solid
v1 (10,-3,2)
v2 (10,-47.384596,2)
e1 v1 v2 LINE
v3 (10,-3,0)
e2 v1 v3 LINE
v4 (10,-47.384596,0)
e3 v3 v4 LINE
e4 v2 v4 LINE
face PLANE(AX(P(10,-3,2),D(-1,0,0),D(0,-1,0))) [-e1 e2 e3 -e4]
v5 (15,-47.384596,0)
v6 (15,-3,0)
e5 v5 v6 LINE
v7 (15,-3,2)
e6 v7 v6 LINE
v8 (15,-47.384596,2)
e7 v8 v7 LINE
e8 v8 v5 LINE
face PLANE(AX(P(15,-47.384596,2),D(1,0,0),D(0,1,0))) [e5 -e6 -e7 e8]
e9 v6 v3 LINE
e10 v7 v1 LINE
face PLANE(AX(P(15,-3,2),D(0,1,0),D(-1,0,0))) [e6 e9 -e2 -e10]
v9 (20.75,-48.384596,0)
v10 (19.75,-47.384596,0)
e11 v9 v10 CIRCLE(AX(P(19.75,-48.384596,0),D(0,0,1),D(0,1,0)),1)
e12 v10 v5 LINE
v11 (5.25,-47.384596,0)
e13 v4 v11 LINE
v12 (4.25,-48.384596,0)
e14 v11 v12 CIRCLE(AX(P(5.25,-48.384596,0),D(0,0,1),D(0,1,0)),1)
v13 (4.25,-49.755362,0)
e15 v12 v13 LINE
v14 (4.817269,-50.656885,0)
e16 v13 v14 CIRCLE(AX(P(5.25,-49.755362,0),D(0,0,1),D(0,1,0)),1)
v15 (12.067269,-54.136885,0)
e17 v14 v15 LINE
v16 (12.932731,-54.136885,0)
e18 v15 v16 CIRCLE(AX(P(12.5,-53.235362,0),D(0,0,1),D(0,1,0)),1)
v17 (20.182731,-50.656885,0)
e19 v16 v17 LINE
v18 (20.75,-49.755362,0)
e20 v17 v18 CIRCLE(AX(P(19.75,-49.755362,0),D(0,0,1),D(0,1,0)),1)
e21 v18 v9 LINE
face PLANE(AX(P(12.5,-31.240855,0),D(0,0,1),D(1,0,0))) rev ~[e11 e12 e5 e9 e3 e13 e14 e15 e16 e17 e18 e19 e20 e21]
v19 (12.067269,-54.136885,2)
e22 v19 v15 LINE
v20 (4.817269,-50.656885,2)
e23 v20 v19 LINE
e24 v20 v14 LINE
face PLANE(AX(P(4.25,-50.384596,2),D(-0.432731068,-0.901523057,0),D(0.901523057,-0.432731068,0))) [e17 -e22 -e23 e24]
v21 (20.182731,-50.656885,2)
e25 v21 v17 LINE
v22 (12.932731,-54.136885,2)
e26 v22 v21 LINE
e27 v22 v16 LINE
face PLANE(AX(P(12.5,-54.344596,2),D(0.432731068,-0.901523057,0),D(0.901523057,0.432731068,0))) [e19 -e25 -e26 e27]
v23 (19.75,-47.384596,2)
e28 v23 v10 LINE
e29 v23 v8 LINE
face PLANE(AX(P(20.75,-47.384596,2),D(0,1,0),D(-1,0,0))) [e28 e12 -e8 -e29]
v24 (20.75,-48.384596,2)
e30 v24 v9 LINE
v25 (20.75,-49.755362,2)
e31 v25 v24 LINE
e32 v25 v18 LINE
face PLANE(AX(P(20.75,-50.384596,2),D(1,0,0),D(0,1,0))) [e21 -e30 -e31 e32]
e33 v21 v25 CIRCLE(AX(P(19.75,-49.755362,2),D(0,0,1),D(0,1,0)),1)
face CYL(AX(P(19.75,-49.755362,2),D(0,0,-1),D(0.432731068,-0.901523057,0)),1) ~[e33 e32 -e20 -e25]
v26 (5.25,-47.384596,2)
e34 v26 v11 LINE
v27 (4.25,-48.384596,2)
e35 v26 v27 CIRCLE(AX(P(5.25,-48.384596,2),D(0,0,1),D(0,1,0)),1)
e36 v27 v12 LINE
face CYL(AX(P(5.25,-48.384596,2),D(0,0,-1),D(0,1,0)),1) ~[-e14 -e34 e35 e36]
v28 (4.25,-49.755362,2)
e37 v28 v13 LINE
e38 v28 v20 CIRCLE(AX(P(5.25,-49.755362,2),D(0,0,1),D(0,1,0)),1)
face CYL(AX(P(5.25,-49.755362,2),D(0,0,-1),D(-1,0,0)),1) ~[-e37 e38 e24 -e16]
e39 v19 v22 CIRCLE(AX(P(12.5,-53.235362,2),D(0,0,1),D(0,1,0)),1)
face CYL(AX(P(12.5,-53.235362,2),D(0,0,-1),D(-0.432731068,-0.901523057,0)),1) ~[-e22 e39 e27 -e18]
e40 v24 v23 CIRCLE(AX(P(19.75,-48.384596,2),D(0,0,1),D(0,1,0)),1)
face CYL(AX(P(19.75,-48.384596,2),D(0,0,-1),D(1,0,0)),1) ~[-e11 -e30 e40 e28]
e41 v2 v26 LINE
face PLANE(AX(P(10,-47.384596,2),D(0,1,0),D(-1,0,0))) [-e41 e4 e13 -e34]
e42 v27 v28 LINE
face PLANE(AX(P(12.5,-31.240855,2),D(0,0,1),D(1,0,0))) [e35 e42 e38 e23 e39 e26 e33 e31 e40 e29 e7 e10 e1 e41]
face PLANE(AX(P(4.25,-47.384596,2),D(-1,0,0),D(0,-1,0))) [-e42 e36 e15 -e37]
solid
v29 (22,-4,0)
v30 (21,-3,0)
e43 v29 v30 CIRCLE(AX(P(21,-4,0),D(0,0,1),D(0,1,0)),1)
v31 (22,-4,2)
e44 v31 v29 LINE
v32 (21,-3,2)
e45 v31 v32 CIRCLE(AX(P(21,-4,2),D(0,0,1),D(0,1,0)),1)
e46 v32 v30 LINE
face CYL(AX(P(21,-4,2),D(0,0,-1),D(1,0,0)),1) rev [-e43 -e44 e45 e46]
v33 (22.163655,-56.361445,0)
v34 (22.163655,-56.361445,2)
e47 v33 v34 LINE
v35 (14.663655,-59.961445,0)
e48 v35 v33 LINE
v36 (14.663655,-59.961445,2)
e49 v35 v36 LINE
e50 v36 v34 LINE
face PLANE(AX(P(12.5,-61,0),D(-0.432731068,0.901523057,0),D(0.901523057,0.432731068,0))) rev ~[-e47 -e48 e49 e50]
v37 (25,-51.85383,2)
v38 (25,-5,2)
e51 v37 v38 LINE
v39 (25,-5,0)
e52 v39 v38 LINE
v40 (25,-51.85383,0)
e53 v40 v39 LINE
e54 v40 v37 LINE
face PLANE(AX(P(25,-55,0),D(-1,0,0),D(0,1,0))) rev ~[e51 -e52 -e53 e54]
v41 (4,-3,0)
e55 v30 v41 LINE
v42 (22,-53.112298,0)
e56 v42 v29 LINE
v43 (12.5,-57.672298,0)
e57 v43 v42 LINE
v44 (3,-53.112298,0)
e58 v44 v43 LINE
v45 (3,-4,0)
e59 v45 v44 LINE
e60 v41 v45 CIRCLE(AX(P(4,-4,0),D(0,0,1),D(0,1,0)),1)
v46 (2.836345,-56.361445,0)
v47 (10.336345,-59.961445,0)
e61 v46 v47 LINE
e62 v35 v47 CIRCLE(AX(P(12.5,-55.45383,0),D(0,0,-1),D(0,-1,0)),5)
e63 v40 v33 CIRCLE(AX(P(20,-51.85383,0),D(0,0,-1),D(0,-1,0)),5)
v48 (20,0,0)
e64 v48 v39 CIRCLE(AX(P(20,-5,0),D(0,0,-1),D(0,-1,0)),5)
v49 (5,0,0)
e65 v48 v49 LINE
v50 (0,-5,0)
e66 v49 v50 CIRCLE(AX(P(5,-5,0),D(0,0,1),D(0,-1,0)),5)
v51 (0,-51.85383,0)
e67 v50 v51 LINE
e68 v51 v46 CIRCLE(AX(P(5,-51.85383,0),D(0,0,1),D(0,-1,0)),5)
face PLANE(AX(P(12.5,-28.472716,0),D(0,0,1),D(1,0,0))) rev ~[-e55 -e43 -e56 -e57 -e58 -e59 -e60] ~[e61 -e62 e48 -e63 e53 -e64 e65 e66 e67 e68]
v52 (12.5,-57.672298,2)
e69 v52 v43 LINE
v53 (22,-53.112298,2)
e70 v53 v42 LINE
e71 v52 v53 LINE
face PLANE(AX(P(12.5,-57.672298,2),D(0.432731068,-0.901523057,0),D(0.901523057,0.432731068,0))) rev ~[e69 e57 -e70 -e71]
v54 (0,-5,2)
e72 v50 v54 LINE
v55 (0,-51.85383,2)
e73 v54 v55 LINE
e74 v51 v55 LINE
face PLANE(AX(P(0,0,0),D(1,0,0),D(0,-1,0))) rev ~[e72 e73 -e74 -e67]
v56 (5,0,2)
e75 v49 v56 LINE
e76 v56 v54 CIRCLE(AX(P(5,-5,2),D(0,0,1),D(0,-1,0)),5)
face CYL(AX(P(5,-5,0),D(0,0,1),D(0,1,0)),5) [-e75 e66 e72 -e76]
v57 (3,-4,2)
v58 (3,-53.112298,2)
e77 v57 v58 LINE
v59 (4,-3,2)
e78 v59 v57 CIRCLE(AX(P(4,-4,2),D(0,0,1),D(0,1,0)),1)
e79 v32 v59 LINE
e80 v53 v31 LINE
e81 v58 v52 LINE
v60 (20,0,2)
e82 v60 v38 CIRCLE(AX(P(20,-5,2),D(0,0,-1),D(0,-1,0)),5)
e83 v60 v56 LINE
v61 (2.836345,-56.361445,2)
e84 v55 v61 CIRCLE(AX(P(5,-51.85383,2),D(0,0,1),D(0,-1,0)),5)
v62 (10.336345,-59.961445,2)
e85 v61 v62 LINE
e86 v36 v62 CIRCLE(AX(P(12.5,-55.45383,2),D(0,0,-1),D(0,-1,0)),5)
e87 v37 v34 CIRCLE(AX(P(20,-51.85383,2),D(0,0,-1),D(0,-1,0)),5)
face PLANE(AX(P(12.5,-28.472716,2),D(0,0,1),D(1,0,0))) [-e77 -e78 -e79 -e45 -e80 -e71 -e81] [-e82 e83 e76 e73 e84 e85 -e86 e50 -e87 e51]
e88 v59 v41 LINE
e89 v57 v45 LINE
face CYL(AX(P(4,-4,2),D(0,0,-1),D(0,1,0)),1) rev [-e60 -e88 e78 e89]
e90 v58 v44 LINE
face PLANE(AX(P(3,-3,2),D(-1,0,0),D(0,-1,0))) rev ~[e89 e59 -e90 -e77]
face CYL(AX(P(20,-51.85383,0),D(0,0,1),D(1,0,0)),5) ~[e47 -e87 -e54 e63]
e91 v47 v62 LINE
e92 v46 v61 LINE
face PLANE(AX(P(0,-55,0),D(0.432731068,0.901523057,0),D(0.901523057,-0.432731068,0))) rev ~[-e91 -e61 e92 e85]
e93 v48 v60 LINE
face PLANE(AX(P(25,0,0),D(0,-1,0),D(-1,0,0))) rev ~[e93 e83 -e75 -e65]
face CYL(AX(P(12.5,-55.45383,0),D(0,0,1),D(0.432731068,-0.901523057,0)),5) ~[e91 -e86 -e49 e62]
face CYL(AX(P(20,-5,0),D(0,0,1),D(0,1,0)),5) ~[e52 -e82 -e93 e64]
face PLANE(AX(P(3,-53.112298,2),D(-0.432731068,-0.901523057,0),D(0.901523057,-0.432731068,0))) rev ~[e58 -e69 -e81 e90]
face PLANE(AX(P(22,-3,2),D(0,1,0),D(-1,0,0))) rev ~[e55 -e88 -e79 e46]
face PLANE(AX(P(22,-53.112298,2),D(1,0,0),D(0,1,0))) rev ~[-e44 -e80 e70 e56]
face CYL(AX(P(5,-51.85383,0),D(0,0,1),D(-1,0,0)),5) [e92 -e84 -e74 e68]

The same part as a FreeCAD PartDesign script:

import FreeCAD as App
import Part
import Sketcher
from FreeCAD import Vector


def edges_at(feature, points):
    """Names of the edges that pass closest to the given points."""
    edges = feature.Shape.Edges
    near = lambda p: min(range(len(edges)), key=lambda i: edges[i].distToShape(Part.Vertex(*p))[0])
    return sorted({f"Edge{near(p) + 1}" for p in points})

doc = App.newDocument("Part")
body = doc.addObject("PartDesign::Body", "Body")

# Sketch on XY plane
sketch1 = body.newObject("Sketcher::SketchObject", "Sketch")
sketch1.AttachmentSupport = (doc.getObject("XY_Plane"), [""])
sketch1.MapMode = "FlatFace"
sketch1.addGeometry(Part.LineSegment(Vector(25, 0, 0), Vector(0, 0, 0)), False)
sketch1.addGeometry(Part.LineSegment(Vector(0, 0, 0), Vector(0, -55, 0)), False)
sketch1.addGeometry(Part.LineSegment(Vector(0, -55, 0), Vector(12.5, -61, 0)), False)
sketch1.addGeometry(Part.LineSegment(Vector(12.5, -61, 0), Vector(25, -55, 0)), False)
sketch1.addGeometry(Part.LineSegment(Vector(25, -55, 0), Vector(25, 0, 0)), False)
sketch1.addConstraint(Sketcher.Constraint("Coincident", 0, 2, 1, 1))
sketch1.addConstraint(Sketcher.Constraint("Coincident", 1, 2, 2, 1))
sketch1.addConstraint(Sketcher.Constraint("Coincident", 2, 2, 3, 1))
sketch1.addConstraint(Sketcher.Constraint("Coincident", 3, 2, 4, 1))
sketch1.addConstraint(Sketcher.Constraint("Coincident", 4, 2, 0, 1))
sketch1.addConstraint(Sketcher.Constraint("Horizontal", 0))
sketch1.addConstraint(Sketcher.Constraint("Vertical", 1))
sketch1.addConstraint(Sketcher.Constraint("Vertical", 4))
sketch1.addConstraint(Sketcher.Constraint("Coincident", 0, 2, -1, 1))
sketch1.addConstraint(Sketcher.Constraint("Horizontal", 1, 2, 3, 2))
sketch1.addConstraint(Sketcher.Constraint("Equal", 2, 3))
sketch1.addConstraint(Sketcher.Constraint("DistanceX", 0, 2, 0, 1, 25.0))
sketch1.addConstraint(Sketcher.Constraint("DistanceY", 1, 2, 1, 1, 55.0))
sketch1.addConstraint(Sketcher.Constraint("DistanceY", 2, 2, -1, 1, 61.0))
pad1 = body.newObject("PartDesign::Pad", "Pad")
pad1.Profile = sketch1
pad1.Length = 2

# Sketch on XY plane
sketch2 = body.newObject("Sketcher::SketchObject", "Sketch001")
sketch2.AttachmentSupport = (doc.getObject("XY_Plane"), [""])
sketch2.MapMode = "FlatFace"
sketch2.AttachmentOffset = App.Placement(Vector(0, 0, 2), App.Rotation())
sketch2.addGeometry(Part.LineSegment(Vector(22, -53.112298, 0), Vector(22, -3, 0)), False)
sketch2.addGeometry(Part.LineSegment(Vector(22, -3, 0), Vector(3, -3, 0)), False)
sketch2.addGeometry(Part.LineSegment(Vector(3, -3, 0), Vector(3, -53.112298, 0)), False)
sketch2.addGeometry(Part.LineSegment(Vector(3, -53.112298, 0), Vector(12.5, -57.672298, 0)), False)
sketch2.addGeometry(Part.LineSegment(Vector(12.5, -57.672298, 0), Vector(22, -53.112298, 0)), False)
sketch2.addConstraint(Sketcher.Constraint("Coincident", 0, 2, 1, 1))
sketch2.addConstraint(Sketcher.Constraint("Coincident", 1, 2, 2, 1))
sketch2.addConstraint(Sketcher.Constraint("Coincident", 2, 2, 3, 1))
sketch2.addConstraint(Sketcher.Constraint("Coincident", 3, 2, 4, 1))
sketch2.addConstraint(Sketcher.Constraint("Coincident", 4, 2, 0, 1))
sketch2.addConstraint(Sketcher.Constraint("Vertical", 0))
sketch2.addConstraint(Sketcher.Constraint("Horizontal", 1))
sketch2.addConstraint(Sketcher.Constraint("Vertical", 2))
sketch2.addConstraint(Sketcher.Constraint("Horizontal", 2, 2, 4, 2))
sketch2.addConstraint(Sketcher.Constraint("Equal", 3, 4))
sketch2.addConstraint(Sketcher.Constraint("DistanceX", 1, 2, 1, 1, 19.0))
sketch2.addConstraint(Sketcher.Constraint("DistanceX", -1, 1, 0, 2, 22.0))
sketch2.addConstraint(Sketcher.Constraint("DistanceY", 0, 2, -1, 1, 3.0))
sketch2.addConstraint(Sketcher.Constraint("DistanceY", 3, 2, 2, 2, 4.56))
sketch2.addConstraint(Sketcher.Constraint("DistanceY", 0, 1, 0, 2, 50.112298))
pocket1 = body.newObject("PartDesign::Pocket", "Pocket")
pocket1.Profile = sketch2
pocket1.Type = "ThroughAll"
doc.recompute()

fillet = body.newObject("PartDesign::Fillet", "Fillet")
fillet.Base = (pocket1, edges_at(pocket1, [
    (0, 0, 1),
    (25, 0, 1),
    (25, -55, 1),
    (12.5, -61, 1),
    (0, -55, 1),
]))
fillet.Radius = 5
doc.recompute()

fillet2 = body.newObject("PartDesign::Fillet", "Fillet001")
fillet2.Base = (fillet, edges_at(fillet, [(3, -3, 1), (22, -3, 1)]))
fillet2.Radius = 1
body2 = doc.addObject("PartDesign::Body", "Body001")

# Sketch on XY plane
sketch3 = body2.newObject("Sketcher::SketchObject", "Sketch002")
sketch3.AttachmentSupport = (doc.getObject("XY_Plane001"), [""])
sketch3.MapMode = "FlatFace"
sketch3.AttachmentOffset = App.Placement(Vector(0, 0, 2), App.Rotation())
sketch3.addGeometry(Part.LineSegment(Vector(15, -3, 0), Vector(10, -3, 0)), False)
sketch3.addGeometry(Part.LineSegment(Vector(10, -3, 0), Vector(10, -47.384596, 0)), False)
sketch3.addGeometry(Part.LineSegment(Vector(10, -47.384596, 0), Vector(4.25, -47.384596, 0)), False)
sketch3.addGeometry(Part.LineSegment(Vector(4.25, -47.384596, 0), Vector(4.25, -50.384596, 0)), False)
sketch3.addGeometry(Part.LineSegment(Vector(4.25, -50.384596, 0), Vector(12.5, -54.344596, 0)), False)
sketch3.addGeometry(Part.LineSegment(Vector(12.5, -54.344596, 0), Vector(20.75, -50.384596, 0)), False)
sketch3.addGeometry(Part.LineSegment(Vector(20.75, -50.384596, 0), Vector(20.75, -47.384596, 0)), False)
sketch3.addGeometry(Part.LineSegment(Vector(20.75, -47.384596, 0), Vector(15, -47.384596, 0)), False)
sketch3.addGeometry(Part.LineSegment(Vector(15, -47.384596, 0), Vector(15, -3, 0)), False)
sketch3.addConstraint(Sketcher.Constraint("Coincident", 0, 2, 1, 1))
sketch3.addConstraint(Sketcher.Constraint("Coincident", 1, 2, 2, 1))
sketch3.addConstraint(Sketcher.Constraint("Coincident", 2, 2, 3, 1))
sketch3.addConstraint(Sketcher.Constraint("Coincident", 3, 2, 4, 1))
sketch3.addConstraint(Sketcher.Constraint("Coincident", 4, 2, 5, 1))
sketch3.addConstraint(Sketcher.Constraint("Coincident", 5, 2, 6, 1))
sketch3.addConstraint(Sketcher.Constraint("Coincident", 6, 2, 7, 1))
sketch3.addConstraint(Sketcher.Constraint("Coincident", 7, 2, 8, 1))
sketch3.addConstraint(Sketcher.Constraint("Coincident", 8, 2, 0, 1))
sketch3.addConstraint(Sketcher.Constraint("Horizontal", 0))
sketch3.addConstraint(Sketcher.Constraint("Vertical", 1))
sketch3.addConstraint(Sketcher.Constraint("Horizontal", 2))
sketch3.addConstraint(Sketcher.Constraint("Vertical", 3))
sketch3.addConstraint(Sketcher.Constraint("Vertical", 6))
sketch3.addConstraint(Sketcher.Constraint("Horizontal", 7))
sketch3.addConstraint(Sketcher.Constraint("Vertical", 8))
sketch3.addConstraint(Sketcher.Constraint("Horizontal", 3, 2, 5, 2))
sketch3.addConstraint(Sketcher.Constraint("Horizontal", 2, 2, 6, 2))
sketch3.addConstraint(Sketcher.Constraint("Equal", 2, 7))
sketch3.addConstraint(Sketcher.Constraint("Equal", 4, 5))
sketch3.addConstraint(Sketcher.Constraint("DistanceX", 0, 2, 0, 1, 5.0))
sketch3.addConstraint(Sketcher.Constraint("DistanceY", 3, 2, 3, 1, 3.0))
sketch3.addConstraint(Sketcher.Constraint("DistanceX", -1, 1, 0, 2, 10.0))
sketch3.addConstraint(Sketcher.Constraint("DistanceY", 0, 2, -1, 1, 3.0))
sketch3.addConstraint(Sketcher.Constraint("DistanceX", 2, 2, 2, 1, 5.75))
sketch3.addConstraint(Sketcher.Constraint("DistanceY", 4, 2, 1, 2, 6.96))
sketch3.addConstraint(Sketcher.Constraint("DistanceY", 1, 2, 1, 1, 44.384596))
pad2 = body2.newObject("PartDesign::Pad", "Pad001")
pad2.Profile = sketch3
pad2.Length = 2
pad2.Reversed = True
doc.recompute()

fillet3 = body2.newObject("PartDesign::Fillet", "Fillet002")
fillet3.Base = (pad2, edges_at(pad2, [
    (20.75, -47.385, 1),
    (20.75, -50.385, 1),
    (12.5, -54.345, 1),
    (4.25, -50.385, 1),
    (4.25, -47.385, 1),
]))
fillet3.Radius = 1

doc.recompute()
